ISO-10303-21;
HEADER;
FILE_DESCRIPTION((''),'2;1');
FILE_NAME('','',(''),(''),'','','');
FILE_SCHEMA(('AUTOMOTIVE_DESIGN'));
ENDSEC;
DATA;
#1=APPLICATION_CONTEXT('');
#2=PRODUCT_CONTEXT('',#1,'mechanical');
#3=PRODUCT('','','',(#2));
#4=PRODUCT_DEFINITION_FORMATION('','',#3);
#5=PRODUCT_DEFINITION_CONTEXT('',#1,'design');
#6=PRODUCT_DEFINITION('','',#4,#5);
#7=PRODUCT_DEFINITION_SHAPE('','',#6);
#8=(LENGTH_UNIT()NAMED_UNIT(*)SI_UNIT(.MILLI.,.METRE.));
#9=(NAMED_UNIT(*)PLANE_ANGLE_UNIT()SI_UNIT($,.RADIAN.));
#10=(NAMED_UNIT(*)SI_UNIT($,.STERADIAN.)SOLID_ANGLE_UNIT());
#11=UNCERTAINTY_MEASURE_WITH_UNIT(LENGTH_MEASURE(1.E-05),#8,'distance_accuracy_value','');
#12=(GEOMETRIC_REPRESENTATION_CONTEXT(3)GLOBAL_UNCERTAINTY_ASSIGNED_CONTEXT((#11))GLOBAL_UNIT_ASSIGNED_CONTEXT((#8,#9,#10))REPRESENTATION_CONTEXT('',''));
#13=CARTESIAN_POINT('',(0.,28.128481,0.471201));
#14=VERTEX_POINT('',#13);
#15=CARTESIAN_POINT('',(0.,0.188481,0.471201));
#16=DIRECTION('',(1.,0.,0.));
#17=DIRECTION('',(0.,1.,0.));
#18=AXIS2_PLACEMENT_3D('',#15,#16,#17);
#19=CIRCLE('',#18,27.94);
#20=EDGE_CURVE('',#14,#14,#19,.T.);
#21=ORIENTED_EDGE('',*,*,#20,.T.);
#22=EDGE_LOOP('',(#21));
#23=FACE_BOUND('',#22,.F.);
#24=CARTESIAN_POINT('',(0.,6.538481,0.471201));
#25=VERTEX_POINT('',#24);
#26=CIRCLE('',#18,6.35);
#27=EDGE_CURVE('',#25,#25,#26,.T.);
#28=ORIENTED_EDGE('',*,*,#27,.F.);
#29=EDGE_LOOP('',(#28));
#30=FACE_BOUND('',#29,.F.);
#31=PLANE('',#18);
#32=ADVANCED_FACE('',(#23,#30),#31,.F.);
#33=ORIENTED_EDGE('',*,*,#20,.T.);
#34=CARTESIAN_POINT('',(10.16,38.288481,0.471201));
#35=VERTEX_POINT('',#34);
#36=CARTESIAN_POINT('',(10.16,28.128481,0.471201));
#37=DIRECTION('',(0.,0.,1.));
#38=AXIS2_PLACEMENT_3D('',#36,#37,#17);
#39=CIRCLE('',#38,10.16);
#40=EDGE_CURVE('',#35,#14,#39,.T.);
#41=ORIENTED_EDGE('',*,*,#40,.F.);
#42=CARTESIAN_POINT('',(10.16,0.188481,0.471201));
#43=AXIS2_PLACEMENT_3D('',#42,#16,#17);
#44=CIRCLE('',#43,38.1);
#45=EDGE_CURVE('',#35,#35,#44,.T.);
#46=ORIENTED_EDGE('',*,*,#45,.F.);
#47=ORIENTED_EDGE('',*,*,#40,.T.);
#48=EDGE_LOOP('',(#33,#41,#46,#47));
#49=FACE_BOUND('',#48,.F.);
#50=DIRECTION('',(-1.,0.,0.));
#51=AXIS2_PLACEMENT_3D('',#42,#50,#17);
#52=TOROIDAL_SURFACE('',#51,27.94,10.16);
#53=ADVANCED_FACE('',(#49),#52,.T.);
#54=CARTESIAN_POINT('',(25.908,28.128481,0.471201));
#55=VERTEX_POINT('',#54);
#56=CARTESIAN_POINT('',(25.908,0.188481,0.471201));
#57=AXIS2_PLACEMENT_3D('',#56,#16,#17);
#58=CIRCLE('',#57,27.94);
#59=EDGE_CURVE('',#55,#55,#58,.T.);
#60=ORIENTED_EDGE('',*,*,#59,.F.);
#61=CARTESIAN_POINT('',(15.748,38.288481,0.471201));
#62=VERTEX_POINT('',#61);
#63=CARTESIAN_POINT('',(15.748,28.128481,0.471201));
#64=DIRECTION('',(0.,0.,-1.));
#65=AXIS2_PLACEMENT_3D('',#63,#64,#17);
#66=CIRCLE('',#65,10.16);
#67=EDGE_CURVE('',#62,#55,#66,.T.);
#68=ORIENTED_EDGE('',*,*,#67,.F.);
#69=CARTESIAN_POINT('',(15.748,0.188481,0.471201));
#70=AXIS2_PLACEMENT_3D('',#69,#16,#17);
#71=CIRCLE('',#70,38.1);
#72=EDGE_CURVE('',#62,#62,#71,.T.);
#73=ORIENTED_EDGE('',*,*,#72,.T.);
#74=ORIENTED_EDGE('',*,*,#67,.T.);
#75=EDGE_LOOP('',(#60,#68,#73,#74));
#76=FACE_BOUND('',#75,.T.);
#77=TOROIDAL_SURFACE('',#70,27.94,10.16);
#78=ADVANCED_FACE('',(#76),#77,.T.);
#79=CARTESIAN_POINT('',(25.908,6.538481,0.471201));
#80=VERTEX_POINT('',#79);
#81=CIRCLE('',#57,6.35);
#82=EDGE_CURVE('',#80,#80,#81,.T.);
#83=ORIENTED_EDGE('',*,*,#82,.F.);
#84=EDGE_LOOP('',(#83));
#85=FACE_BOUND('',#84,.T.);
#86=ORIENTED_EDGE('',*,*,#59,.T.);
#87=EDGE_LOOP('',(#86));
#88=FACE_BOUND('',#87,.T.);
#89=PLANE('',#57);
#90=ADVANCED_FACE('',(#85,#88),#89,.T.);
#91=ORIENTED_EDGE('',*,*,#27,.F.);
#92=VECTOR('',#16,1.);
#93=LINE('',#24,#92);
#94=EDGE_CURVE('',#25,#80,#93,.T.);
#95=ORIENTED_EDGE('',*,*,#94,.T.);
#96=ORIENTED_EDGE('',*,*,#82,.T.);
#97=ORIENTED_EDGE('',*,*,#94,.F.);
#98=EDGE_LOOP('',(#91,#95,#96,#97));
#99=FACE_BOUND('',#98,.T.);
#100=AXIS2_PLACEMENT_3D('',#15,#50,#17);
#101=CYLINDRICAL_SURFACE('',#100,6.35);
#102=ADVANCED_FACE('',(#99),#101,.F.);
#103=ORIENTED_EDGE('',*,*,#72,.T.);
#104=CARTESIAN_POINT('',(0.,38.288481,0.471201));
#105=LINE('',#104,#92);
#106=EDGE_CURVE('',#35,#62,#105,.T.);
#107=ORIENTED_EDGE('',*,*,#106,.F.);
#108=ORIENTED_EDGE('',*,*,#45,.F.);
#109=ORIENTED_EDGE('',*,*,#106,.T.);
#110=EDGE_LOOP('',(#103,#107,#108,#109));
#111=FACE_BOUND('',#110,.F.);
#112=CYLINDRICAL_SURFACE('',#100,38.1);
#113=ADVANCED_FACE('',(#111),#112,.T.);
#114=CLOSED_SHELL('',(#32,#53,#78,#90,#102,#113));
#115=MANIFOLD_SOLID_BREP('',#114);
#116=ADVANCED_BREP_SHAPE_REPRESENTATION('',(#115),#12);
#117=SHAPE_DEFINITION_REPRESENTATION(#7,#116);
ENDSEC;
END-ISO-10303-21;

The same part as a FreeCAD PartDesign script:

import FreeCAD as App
import Part
import Sketcher
from FreeCAD import Vector
Q = App.Units.Quantity


def edges_at(feature, points):
    """Names of the edges that pass closest to the given points."""
    edges = feature.Shape.Edges
    near = lambda p: min(range(len(edges)), key=lambda i: edges[i].distToShape(Part.Vertex(*p))[0])
    return sorted({f"Edge{near(p) + 1}" for p in points})

doc = App.newDocument("Part")
body = doc.addObject("PartDesign::Body", "Body")

sketch1 = body.newObject("Sketcher::SketchObject", "Sketch")
sketch1.AttachmentSupport = (doc.getObject("YZ_Plane"), [""])
sketch1.MapMode = "FlatFace"
sketch1.addGeometry([
    Part.Circle(Vector(0, 0, 0), Vector(0, 0, 1), 38),
    Part.Circle(Vector(0, 0, 0), Vector(0, 0, 1), 6),
], False)
sketch1.addConstraint([
    Sketcher.Constraint("Coincident", 1, 3, 0, 3),
    Sketcher.Constraint("Diameter", 0, Q("3 in")),
    Sketcher.Constraint("Diameter", 1, Q("0.5 in")),
    Sketcher.Constraint("DistanceY", -1, 1, 0, 3, 0.471201),
    Sketcher.Constraint("DistanceX", -1, 1, 0, 3, 0.188481),
])
pad1 = body.newObject("PartDesign::Pad", "Pad")
pad1.Profile = sketch1
pad1.Length = Q("1.02 in")
doc.recompute()

fillet = body.newObject("PartDesign::Fillet", "Fillet")
fillet.Base = (pad1, edges_at(pad1, [(12.954, 38.288, 0.471), (0, -37.912, 0.471), (25.908, -37.912, 0.471)]))
fillet.Radius = Q("0.4 in")

doc.recompute()
